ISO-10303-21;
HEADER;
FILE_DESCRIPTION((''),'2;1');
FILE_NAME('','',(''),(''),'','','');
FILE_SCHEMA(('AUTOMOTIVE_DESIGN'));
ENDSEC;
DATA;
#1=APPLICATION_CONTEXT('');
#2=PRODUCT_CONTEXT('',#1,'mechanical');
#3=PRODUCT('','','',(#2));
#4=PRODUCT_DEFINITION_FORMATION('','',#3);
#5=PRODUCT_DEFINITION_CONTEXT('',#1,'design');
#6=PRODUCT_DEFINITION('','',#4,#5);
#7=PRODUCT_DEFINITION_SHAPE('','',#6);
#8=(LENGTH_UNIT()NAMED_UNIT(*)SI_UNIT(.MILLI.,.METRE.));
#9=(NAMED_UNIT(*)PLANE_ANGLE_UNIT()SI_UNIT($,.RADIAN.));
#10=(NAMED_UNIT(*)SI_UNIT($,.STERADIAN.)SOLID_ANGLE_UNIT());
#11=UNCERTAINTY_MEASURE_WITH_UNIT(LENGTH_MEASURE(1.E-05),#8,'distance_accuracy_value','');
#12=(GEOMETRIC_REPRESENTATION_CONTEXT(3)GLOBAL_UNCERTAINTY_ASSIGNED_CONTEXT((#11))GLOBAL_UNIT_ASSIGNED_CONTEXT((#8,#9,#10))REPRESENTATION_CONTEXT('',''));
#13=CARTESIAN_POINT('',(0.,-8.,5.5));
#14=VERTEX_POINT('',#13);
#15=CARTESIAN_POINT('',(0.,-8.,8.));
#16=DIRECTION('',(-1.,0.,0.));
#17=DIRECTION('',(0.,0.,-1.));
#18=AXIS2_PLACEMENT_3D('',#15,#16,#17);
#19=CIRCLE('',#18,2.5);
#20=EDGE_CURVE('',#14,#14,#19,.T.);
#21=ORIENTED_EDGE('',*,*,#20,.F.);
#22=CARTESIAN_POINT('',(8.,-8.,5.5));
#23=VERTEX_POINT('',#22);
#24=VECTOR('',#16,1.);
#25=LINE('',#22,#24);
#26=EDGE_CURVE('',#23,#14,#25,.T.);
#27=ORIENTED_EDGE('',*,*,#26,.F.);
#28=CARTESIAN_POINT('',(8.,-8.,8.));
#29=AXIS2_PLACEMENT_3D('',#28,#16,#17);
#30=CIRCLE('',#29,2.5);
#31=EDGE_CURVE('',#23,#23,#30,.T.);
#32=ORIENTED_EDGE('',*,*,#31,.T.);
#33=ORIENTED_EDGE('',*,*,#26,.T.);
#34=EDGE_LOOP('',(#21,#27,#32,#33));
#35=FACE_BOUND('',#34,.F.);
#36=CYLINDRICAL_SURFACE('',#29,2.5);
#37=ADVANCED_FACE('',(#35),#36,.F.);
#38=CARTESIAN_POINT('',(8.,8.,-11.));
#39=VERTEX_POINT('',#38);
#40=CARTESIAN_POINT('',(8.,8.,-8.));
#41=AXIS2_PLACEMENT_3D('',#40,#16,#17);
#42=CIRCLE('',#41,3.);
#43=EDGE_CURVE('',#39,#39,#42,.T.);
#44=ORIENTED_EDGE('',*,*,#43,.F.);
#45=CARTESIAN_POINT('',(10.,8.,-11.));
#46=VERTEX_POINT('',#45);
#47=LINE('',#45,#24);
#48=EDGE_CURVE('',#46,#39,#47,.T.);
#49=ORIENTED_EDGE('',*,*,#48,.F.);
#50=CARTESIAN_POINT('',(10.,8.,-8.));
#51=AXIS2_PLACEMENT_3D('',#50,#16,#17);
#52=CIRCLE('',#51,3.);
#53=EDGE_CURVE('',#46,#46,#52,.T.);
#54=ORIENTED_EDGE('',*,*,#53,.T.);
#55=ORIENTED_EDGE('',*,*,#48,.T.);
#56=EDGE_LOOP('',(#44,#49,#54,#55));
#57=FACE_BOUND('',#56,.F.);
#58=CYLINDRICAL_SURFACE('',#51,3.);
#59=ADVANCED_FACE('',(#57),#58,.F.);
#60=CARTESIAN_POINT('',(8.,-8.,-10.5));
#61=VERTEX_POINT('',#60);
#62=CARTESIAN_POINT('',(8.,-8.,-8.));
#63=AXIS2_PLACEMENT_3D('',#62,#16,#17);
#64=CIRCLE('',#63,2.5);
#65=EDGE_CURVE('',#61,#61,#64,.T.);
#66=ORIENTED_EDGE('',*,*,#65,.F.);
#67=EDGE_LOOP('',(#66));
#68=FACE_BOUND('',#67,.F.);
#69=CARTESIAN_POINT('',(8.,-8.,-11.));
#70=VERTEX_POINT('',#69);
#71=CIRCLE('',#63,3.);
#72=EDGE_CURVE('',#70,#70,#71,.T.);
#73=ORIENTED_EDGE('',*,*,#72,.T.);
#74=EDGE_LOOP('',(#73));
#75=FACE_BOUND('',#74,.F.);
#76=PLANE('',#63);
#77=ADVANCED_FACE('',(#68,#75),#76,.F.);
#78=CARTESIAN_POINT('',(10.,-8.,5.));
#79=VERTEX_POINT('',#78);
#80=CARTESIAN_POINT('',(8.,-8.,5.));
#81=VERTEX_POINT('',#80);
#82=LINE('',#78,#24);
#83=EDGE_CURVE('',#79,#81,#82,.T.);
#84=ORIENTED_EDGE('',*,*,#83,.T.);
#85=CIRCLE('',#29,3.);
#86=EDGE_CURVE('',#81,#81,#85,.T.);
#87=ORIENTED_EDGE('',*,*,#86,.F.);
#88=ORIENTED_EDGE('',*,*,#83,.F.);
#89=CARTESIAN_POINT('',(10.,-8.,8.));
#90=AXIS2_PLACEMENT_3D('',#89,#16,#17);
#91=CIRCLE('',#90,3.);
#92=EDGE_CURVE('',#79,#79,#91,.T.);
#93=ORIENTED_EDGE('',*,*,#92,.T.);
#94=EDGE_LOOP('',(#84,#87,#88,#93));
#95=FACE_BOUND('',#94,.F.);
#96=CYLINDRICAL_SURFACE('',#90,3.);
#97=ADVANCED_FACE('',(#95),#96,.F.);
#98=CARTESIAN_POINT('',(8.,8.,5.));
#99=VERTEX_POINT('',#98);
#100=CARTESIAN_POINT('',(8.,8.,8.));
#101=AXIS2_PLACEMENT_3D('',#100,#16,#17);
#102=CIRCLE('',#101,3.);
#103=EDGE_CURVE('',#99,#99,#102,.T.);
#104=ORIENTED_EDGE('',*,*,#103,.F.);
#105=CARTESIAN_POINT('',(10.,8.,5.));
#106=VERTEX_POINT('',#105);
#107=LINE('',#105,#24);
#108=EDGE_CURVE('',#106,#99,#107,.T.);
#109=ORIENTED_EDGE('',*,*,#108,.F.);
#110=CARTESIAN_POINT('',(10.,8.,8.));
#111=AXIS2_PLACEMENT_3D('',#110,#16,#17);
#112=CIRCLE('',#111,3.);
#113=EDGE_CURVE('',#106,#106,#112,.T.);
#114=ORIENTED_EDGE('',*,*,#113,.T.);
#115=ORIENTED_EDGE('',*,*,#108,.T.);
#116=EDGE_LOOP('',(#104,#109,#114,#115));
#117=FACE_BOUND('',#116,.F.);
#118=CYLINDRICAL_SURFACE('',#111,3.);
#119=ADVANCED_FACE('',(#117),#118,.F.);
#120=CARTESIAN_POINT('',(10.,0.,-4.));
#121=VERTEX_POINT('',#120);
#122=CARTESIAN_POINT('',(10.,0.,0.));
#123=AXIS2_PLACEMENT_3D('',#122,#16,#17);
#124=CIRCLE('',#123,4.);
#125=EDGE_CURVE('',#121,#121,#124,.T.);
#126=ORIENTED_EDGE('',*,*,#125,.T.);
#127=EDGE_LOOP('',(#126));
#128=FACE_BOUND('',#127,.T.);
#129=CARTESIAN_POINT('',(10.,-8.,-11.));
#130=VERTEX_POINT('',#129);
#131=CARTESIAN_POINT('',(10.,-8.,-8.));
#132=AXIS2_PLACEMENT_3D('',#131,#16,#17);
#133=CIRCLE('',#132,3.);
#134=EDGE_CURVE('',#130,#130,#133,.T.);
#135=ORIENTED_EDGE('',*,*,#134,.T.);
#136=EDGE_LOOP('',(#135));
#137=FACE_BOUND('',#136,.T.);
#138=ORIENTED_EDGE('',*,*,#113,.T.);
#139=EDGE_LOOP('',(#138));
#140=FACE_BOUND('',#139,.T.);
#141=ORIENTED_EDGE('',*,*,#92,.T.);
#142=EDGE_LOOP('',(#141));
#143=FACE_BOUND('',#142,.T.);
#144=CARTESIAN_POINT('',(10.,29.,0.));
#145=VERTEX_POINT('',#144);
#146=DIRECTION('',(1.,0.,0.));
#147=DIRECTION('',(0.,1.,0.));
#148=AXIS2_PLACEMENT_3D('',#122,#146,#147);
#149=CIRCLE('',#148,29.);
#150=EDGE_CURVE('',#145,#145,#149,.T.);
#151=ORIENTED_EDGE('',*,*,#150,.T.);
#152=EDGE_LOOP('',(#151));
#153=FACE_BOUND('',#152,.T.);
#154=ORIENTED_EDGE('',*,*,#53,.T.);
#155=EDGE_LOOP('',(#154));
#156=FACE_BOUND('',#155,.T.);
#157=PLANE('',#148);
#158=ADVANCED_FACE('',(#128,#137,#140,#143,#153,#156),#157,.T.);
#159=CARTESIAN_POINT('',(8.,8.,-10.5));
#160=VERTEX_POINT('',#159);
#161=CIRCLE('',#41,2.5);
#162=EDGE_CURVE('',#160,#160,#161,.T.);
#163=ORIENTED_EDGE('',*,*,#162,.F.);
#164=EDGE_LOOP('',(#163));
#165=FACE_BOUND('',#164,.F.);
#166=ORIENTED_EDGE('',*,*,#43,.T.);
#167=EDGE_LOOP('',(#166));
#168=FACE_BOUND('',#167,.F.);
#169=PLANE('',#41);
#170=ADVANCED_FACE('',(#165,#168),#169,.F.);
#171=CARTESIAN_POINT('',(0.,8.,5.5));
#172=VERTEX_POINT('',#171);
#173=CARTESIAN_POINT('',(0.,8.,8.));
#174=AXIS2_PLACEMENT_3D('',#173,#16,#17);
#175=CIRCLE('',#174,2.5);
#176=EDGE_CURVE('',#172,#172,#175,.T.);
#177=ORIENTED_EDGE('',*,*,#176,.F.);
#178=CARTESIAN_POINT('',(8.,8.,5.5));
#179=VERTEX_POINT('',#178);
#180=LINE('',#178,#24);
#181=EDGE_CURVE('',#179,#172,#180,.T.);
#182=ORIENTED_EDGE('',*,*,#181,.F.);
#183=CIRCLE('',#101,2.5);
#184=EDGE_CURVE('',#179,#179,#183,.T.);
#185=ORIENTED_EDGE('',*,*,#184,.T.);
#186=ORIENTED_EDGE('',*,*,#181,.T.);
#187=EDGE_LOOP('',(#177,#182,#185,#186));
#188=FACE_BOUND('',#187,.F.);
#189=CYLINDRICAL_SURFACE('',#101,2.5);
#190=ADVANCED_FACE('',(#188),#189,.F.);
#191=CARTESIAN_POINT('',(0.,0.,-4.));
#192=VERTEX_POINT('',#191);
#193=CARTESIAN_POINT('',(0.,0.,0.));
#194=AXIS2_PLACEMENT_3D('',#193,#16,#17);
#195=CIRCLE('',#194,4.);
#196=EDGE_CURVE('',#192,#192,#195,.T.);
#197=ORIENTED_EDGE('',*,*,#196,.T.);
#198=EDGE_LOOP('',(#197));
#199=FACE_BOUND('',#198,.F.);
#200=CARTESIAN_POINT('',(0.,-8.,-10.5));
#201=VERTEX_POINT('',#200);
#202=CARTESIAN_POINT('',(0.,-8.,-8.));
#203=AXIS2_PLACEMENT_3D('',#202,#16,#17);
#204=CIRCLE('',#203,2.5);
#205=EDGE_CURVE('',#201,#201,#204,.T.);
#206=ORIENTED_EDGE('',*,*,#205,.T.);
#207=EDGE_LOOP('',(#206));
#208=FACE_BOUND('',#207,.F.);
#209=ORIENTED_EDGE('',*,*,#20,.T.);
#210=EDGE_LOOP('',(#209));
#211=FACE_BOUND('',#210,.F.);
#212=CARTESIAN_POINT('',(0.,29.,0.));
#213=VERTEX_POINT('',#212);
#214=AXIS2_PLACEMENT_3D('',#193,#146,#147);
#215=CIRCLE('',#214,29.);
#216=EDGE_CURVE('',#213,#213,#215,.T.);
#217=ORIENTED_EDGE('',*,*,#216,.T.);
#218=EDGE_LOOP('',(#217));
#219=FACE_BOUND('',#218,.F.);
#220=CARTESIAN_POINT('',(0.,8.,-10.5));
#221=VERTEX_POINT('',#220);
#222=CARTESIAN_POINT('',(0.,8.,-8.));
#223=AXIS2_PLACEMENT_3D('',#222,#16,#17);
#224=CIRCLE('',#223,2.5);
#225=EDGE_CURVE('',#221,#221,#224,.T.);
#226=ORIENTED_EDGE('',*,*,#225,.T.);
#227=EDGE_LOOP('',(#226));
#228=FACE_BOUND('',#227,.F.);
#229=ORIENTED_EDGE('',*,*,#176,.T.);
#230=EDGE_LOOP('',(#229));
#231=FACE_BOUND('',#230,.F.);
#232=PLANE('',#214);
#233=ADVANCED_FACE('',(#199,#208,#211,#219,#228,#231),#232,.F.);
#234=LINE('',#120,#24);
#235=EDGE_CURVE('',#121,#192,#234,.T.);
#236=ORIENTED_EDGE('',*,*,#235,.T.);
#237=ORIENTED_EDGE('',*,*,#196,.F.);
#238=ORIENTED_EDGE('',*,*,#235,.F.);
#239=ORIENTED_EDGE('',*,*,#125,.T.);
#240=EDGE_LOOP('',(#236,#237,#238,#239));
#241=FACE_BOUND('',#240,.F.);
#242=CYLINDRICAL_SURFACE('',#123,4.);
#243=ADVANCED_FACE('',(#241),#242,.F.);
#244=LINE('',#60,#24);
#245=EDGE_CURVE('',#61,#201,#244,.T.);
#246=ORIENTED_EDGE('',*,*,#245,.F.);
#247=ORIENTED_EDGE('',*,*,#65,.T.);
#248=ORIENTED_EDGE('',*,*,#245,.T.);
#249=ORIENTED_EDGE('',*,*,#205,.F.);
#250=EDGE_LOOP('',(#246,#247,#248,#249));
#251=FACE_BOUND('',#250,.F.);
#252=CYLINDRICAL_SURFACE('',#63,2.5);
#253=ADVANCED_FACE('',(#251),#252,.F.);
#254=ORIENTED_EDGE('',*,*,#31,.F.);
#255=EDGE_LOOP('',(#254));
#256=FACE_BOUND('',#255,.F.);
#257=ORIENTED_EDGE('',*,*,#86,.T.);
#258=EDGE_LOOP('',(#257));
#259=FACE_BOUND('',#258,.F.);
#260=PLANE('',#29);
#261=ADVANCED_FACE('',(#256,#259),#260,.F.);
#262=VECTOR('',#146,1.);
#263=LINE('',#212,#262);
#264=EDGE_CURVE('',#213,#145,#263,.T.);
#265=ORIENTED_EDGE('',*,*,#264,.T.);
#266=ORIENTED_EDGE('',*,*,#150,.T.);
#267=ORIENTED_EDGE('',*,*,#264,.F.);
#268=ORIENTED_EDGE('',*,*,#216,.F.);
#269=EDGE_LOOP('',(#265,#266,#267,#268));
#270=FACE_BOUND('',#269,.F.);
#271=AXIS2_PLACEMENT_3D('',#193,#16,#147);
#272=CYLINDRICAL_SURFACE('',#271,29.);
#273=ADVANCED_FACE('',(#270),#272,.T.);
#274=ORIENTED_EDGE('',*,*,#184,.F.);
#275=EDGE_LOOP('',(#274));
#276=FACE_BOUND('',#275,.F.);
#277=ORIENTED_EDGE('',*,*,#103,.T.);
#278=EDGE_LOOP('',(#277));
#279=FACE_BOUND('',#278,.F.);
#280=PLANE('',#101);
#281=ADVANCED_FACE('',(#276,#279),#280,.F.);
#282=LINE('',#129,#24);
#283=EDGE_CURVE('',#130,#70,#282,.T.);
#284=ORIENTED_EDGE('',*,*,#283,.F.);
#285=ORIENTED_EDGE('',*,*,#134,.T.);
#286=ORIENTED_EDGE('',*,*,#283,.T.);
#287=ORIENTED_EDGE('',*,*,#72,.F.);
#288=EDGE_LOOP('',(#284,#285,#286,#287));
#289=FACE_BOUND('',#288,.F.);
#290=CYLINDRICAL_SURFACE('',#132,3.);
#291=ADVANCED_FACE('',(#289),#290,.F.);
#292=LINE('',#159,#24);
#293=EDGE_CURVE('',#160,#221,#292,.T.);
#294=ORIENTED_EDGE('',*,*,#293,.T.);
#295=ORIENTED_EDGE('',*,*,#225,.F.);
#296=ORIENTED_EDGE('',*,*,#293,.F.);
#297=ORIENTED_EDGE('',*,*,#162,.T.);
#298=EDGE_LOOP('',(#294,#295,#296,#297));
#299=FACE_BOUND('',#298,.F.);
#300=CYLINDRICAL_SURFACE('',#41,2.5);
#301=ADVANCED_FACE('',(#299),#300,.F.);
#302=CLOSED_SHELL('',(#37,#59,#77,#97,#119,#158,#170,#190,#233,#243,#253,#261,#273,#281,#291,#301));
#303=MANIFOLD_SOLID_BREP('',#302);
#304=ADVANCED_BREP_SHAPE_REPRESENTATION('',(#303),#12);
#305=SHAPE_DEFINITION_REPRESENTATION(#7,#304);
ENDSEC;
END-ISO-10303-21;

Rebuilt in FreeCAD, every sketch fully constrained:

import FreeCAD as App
import Part
import Sketcher
from FreeCAD import Vector

doc = App.newDocument("Part")
body = doc.addObject("PartDesign::Body", "Body")

# Sketch on YZ plane
sketch1 = doc.addObject("Sketcher::SketchObject", "Sketch")
body.addObject(sketch1)
sketch1.AttachmentSupport = (doc.YZ_Plane, [""])
sketch1.MapMode = "FlatFace"
sketch1.addGeometry(Part.Circle(Vector(0, 0, 0), Vector(0, 0, 1), 29), False)
sketch1.addConstraint(Sketcher.Constraint("Coincident", 0, 3, -1, 1))
sketch1.addConstraint(Sketcher.Constraint("Diameter", 0, 58.0))
pad1 = doc.addObject("PartDesign::Pad", "Pad")
body.addObject(pad1)
pad1.Profile = sketch1
pad1.Length = 10

# Sketch on YZ plane
sketch2 = doc.addObject("Sketcher::SketchObject", "Sketch001")
body.addObject(sketch2)
sketch2.AttachmentSupport = (doc.YZ_Plane, [""])
sketch2.MapMode = "FlatFace"
sketch2.AttachmentOffset = App.Placement(Vector(0, 0, 10), App.Rotation())
sketch2.addGeometry(Part.Circle(Vector(8, 8, 0), Vector(0, 0, 1), 2.5), False)
sketch2.addGeometry(Part.Circle(Vector(8, -8, 0), Vector(0, 0, 1), 2.5), False)
sketch2.addGeometry(Part.Circle(Vector(-8, -8, 0), Vector(0, 0, 1), 2.5), False)
sketch2.addGeometry(Part.Circle(Vector(-8, 8, 0), Vector(0, 0, 1), 2.5), False)
sketch2.addConstraint(Sketcher.Constraint("Equal", 0, 1))
sketch2.addConstraint(Sketcher.Constraint("Equal", 1, 2))
sketch2.addConstraint(Sketcher.Constraint("Equal", 2, 3))
sketch2.addConstraint(Sketcher.Constraint("Symmetric", 0, 3, 2, 3, -1, 1))
sketch2.addConstraint(Sketcher.Constraint("Symmetric", 1, 3, 3, 3, -1, 1))
sketch2.addConstraint(Sketcher.Constraint("Symmetric", 1, 3, 2, 3, -2))
sketch2.addConstraint(Sketcher.Constraint("Diameter", 0, 5.0))
sketch2.addConstraint(Sketcher.Constraint("DistanceX", -1, 1, 0, 3, 8.0))
sketch2.addConstraint(Sketcher.Constraint("DistanceY", -1, 1, 0, 3, 8.0))
doc.recompute()
hole = doc.addObject("PartDesign::Hole", "Hole")
body.addObject(hole)
hole.Profile = sketch2
hole.ThreadType = "None"
hole.Diameter = 5
hole.DepthType = "ThroughAll"
hole.HoleCutType = "Counterbore"
hole.HoleCutDiameter = 6
hole.HoleCutDepth = 2

# Sketch on YZ plane
sketch3 = doc.addObject("Sketcher::SketchObject", "Sketch002")
body.addObject(sketch3)
sketch3.AttachmentSupport = (doc.YZ_Plane, [""])
sketch3.MapMode = "FlatFace"
sketch3.AttachmentOffset = App.Placement(Vector(0, 0, 10), App.Rotation())
sketch3.addGeometry(Part.Circle(Vector(0, 0, 0), Vector(0, 0, 1), 4), False)
sketch3.addConstraint(Sketcher.Constraint("Coincident", 0, 3, -1, 1))
sketch3.addConstraint(Sketcher.Constraint("Diameter", 0, 8.0))
doc.recompute()
hole2 = doc.addObject("PartDesign::Hole", "Hole001")
body.addObject(hole2)
hole2.Profile = sketch3
hole2.ThreadType = "None"
hole2.Diameter = 8
hole2.DepthType = "ThroughAll"

doc.recompute()
